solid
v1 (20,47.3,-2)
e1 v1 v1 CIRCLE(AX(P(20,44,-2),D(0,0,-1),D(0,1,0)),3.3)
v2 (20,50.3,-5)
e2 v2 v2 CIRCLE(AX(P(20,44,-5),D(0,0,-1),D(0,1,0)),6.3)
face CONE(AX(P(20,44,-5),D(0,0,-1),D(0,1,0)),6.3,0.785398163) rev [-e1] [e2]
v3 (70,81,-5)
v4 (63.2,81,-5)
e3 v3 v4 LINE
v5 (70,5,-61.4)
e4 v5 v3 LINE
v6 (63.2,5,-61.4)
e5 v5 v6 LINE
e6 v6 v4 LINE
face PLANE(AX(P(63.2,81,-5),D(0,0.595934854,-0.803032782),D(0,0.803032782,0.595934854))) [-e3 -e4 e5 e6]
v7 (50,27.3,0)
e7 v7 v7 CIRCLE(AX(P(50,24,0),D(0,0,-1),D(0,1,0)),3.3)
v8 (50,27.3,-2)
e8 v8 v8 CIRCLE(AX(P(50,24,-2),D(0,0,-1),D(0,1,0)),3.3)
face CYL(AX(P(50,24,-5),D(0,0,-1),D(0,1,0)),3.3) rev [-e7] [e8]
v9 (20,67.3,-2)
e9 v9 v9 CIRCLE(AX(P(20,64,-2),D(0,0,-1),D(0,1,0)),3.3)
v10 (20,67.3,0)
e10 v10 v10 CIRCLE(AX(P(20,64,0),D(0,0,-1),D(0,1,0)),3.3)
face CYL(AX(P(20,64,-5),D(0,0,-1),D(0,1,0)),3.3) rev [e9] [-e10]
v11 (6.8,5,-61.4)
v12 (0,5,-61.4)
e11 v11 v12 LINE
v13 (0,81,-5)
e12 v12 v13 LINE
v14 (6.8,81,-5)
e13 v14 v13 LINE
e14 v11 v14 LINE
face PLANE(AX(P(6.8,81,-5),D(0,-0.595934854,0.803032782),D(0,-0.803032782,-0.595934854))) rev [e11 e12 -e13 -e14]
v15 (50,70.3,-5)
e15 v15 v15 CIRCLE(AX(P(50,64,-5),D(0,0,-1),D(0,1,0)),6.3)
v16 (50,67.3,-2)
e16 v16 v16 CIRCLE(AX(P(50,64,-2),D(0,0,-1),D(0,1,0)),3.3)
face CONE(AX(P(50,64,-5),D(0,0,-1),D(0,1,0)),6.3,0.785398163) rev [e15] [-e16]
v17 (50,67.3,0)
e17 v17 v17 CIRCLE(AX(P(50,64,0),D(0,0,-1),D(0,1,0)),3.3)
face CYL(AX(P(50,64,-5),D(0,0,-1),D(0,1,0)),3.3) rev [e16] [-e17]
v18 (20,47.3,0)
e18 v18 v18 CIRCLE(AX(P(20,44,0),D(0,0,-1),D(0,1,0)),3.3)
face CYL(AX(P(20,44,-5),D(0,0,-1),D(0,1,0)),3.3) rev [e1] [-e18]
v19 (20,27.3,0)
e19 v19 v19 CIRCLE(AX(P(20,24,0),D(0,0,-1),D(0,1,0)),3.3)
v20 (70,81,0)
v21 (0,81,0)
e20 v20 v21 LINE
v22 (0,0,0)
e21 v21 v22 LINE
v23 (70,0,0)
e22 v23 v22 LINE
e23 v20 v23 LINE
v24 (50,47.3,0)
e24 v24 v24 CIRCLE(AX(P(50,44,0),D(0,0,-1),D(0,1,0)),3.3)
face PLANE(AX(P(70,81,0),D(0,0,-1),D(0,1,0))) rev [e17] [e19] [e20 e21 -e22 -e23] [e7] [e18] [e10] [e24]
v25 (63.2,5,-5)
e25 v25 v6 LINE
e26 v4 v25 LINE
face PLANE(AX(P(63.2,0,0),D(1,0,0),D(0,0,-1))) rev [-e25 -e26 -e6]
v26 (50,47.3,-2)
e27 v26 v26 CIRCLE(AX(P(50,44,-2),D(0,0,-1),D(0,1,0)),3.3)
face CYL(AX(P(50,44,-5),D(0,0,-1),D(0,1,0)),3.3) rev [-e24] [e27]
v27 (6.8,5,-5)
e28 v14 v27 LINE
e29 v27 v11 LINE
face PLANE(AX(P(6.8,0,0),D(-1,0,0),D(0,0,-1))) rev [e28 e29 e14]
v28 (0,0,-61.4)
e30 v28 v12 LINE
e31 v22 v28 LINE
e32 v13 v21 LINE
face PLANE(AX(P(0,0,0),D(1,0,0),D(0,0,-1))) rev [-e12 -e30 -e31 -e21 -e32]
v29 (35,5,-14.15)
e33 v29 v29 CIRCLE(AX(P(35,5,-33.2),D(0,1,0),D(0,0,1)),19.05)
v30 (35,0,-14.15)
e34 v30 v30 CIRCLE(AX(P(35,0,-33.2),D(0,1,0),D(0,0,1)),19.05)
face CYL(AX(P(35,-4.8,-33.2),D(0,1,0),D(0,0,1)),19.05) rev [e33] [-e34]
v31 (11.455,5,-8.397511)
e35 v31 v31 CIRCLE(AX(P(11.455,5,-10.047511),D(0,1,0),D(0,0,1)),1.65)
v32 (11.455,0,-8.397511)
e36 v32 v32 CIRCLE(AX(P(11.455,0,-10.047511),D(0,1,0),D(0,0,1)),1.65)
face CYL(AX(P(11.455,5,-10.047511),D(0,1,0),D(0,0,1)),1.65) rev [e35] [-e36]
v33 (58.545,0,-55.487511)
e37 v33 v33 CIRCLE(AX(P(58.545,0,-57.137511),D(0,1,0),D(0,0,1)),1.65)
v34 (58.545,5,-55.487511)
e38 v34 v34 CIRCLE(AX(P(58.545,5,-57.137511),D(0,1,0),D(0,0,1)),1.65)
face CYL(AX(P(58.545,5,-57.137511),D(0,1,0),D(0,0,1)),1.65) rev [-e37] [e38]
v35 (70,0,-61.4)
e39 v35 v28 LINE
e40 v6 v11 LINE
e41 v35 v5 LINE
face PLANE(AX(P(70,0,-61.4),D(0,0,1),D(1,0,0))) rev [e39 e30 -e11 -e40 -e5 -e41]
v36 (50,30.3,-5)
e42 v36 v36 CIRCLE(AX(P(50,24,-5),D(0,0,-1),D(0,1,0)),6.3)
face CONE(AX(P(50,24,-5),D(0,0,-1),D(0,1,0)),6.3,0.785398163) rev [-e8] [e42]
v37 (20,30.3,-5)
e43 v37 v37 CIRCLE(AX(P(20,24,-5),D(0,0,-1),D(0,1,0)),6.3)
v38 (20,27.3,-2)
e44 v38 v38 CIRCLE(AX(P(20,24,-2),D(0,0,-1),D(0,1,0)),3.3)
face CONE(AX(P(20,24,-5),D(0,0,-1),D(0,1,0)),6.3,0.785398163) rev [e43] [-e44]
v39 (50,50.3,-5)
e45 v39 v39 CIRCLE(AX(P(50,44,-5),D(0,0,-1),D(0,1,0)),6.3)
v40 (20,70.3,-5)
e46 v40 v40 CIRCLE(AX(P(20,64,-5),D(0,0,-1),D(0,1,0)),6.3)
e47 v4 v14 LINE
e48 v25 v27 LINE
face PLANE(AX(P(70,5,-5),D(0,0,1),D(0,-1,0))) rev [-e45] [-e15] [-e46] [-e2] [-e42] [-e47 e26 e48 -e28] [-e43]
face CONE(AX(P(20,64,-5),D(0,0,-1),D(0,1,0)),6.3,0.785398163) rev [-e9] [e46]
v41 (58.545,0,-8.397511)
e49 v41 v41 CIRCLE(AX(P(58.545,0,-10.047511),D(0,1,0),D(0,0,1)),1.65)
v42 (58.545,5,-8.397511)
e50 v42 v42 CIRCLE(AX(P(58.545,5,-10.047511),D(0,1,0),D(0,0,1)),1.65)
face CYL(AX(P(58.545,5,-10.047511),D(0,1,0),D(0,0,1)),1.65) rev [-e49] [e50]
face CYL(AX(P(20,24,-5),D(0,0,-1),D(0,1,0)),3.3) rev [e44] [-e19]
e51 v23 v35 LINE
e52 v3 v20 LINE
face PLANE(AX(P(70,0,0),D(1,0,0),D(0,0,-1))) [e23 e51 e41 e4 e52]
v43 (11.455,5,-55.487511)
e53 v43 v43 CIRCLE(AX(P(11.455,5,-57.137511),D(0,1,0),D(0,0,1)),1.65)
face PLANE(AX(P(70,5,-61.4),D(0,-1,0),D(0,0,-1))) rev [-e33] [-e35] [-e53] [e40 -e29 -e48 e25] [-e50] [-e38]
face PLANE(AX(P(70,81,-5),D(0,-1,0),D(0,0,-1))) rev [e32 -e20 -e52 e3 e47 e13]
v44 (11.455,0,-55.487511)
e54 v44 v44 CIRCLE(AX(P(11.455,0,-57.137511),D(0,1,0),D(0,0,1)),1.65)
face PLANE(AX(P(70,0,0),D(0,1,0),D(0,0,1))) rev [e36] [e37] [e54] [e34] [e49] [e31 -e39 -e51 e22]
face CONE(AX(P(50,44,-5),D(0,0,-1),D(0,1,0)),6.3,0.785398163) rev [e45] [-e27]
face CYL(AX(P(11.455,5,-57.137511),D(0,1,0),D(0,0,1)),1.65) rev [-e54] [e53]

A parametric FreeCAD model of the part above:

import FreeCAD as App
import Part
import Sketcher
Q = App.Units.Quantity

doc = App.newDocument("Part")
body = doc.addObject("PartDesign::Body", "Body")

# Sketch on YZ plane
sketch1 = body.newObject("Sketcher::SketchObject", "Sketch")
sketch1.AttachmentSupport = (doc.getObject("YZ_Plane"), [""])
sketch1.MapMode = "FlatFace"
sketch1.addGeometry([
    Part.LineSegment(App.Vector(0, 0, 0), App.Vector(0, -61, 0)),  # 0
    Part.LineSegment(App.Vector(0, -61, 0), App.Vector(5, -61, 0)),  # 1
    Part.LineSegment(App.Vector(5, -61, 0), App.Vector(5, -5, 0)),  # 2
    Part.LineSegment(App.Vector(5, -5, 0), App.Vector(81, -5, 0)),  # 3
    Part.LineSegment(App.Vector(81, -5, 0), App.Vector(81, 0, 0)),  # 4
    Part.LineSegment(App.Vector(81, 0, 0), App.Vector(0, 0, 0)),  # 5
], False)
sketch1.addConstraint([
    Sketcher.Constraint("Coincident", 0, 2, 1, 1),
    Sketcher.Constraint("Coincident", 1, 2, 2, 1),
    Sketcher.Constraint("Coincident", 2, 2, 3, 1),
    Sketcher.Constraint("Coincident", 3, 2, 4, 1),
    Sketcher.Constraint("Coincident", 4, 2, 5, 1),
    Sketcher.Constraint("Coincident", 5, 2, 0, 1),
    Sketcher.Constraint("Vertical", 0),
    Sketcher.Constraint("Horizontal", 1),
    Sketcher.Constraint("Vertical", 2),
    Sketcher.Constraint("Horizontal", 3),
    Sketcher.Constraint("Vertical", 4),
    Sketcher.Constraint("Horizontal", 5),
    Sketcher.Constraint("Coincident", 5, 2, -1, 1),
    Sketcher.Constraint("Equal", 1, 4),
    Sketcher.Constraint("DistanceX", 1, 1, 1, 2, Q("5 mm")),
    Sketcher.Constraint("DistanceX", 3, 1, 3, 2, Q("76 mm")),
    Sketcher.Constraint("DistanceY", 0, 2, 0, 1, Q("61.4 mm")),
])
pad1 = body.newObject("PartDesign::Pad", "Pad")
pad1.Profile = sketch1
pad1.Length = 70

# Sketch on YZ plane
sketch2 = body.newObject("Sketcher::SketchObject", "Sketch001")
sketch2.AttachmentSupport = (doc.getObject("YZ_Plane"), [""])
sketch2.MapMode = "FlatFace"
sketch2.AttachmentOffset = App.Placement(App.Vector(0, 0, 70), App.Rotation())
sketch2.addGeometry([
    Part.LineSegment(App.Vector(5, -61, 0), App.Vector(81, -5, 0)),
    Part.LineSegment(App.Vector(81, -5, 0), App.Vector(5, -5, 0)),
    Part.LineSegment(App.Vector(5, -5, 0), App.Vector(5, -61, 0)),
], False)
sketch2.addConstraint([
    Sketcher.Constraint("Coincident", 0, 2, 1, 1),
    Sketcher.Constraint("Coincident", 1, 2, 2, 1),
    Sketcher.Constraint("Coincident", 2, 2, 0, 1),
    Sketcher.Constraint("Horizontal", 1),
    Sketcher.Constraint("Vertical", 2),
    Sketcher.Constraint("DistanceX", 1, 2, 1, 1, Q("76 mm")),
    Sketcher.Constraint("DistanceY", 2, 2, 2, 1, Q("56.4 mm")),
    Sketcher.Constraint("DistanceX", -1, 1, 0, 2, Q("81 mm")),
    Sketcher.Constraint("DistanceY", 0, 2, -1, 1, Q("5 mm")),
])
pad2 = body.newObject("PartDesign::Pad", "Pad001")
pad2.Profile = sketch2
pad2.Length = 6.8
pad2.Reversed = True
doc.recompute()

datumplane = body.newObject("PartDesign::Plane", "DatumPlane")
datumplane.AttachmentSupport = (doc.getObject("YZ_Plane"), [""])
datumplane.MapMode = "FlatFace"
datumplane.AttachmentOffset = App.Placement(App.Vector(0, 0, 35), App.Rotation())
mirrored = body.newObject("PartDesign::Mirrored", "Mirrored")
mirrored.Originals = [pad2]
mirrored.MirrorPlane = (datumplane, [""])
body.Tip = mirrored

# Sketch on XZ plane
sketch3 = body.newObject("Sketcher::SketchObject", "Sketch002")
sketch3.AttachmentSupport = (doc.getObject("XZ_Plane"), [""])
sketch3.MapMode = "FlatFace"
sketch3.AttachmentOffset = App.Placement(App.Vector(0, 0, -5), App.Rotation())
sketch3.addGeometry([
    Part.Circle(App.Vector(11.5, -57.1, 0), App.Vector(0, 0, 1), 1.6),
    Part.Circle(App.Vector(58.5, -57.1, 0), App.Vector(0, 0, 1), 1.6),
    Part.Circle(App.Vector(11.5, -10, 0), App.Vector(0, 0, 1), 1.6),
    Part.Circle(App.Vector(58.5, -10, 0), App.Vector(0, 0, 1), 1.6),
], False)
sketch3.addConstraint([
    Sketcher.Constraint("Equal", 0, 1),
    Sketcher.Constraint("Equal", 1, 2),
    Sketcher.Constraint("Equal", 2, 3),
    Sketcher.Constraint("Horizontal", 0, 3, 1, 3),
    Sketcher.Constraint("Horizontal", 2, 3, 3, 3),
    Sketcher.Constraint("Vertical", 0, 3, 2, 3),
    Sketcher.Constraint("Vertical", 1, 3, 3, 3),
    Sketcher.Constraint("Diameter", 0, Q("3.3 mm")),
    Sketcher.Constraint("DistanceX", 0, 3, 1, 3, Q("47.09 mm")),
    Sketcher.Constraint("DistanceY", 0, 3, 2, 3, Q("47.09 mm")),
    Sketcher.Constraint("DistanceX", -1, 1, 0, 3, Q("11.455 mm")),
    Sketcher.Constraint("DistanceY", 0, 3, -1, 1, Q("57.137511 mm")),
])
doc.recompute()
hole = body.newObject("PartDesign::Hole", "Hole")
hole.Profile = sketch3
hole.ThreadType = "None"
hole.Diameter = 3.3
hole.DepthType = "ThroughAll"
hole.Reversed = True

# Sketch on XZ plane
sketch4 = body.newObject("Sketcher::SketchObject", "Sketch003")
sketch4.AttachmentSupport = (doc.getObject("XZ_Plane"), [""])
sketch4.MapMode = "FlatFace"
sketch4.AttachmentOffset = App.Placement(App.Vector(0, 0, -5), App.Rotation())
sketch4.addGeometry(Part.Circle(App.Vector(35, -33, 0), App.Vector(0, 0, 1), 19), False)
sketch4.addConstraint([
    Sketcher.Constraint("Diameter", 0, Q("38.1 mm")),
    Sketcher.Constraint("DistanceX", -1, 1, 0, 3, Q("35 mm")),
    Sketcher.Constraint("DistanceY", 0, 3, -1, 1, Q("33.2 mm")),
])
pocket1 = body.newObject("PartDesign::Pocket", "Pocket")
pocket1.Profile = sketch4
pocket1.Length = 9.8
pocket1.Reversed = True

# Sketch on YZ plane
sketch5 = body.newObject("Sketcher::SketchObject", "Sketch004")
sketch5.AttachmentSupport = (doc.getObject("YZ_Plane"), [""])
sketch5.MapMode = "FlatFace"
sketch5.AttachmentOffset = App.Placement(App.Vector(0, 0, 50), App.Rotation())
sketch5.addGeometry([
    Part.LineSegment(App.Vector(64, 0, 0), App.Vector(64, -5, 0)),  # 0
    Part.LineSegment(App.Vector(64, -5, 0), App.Vector(70.3, -5, 0)),  # 1
    Part.LineSegment(App.Vector(70.3, -5, 0), App.Vector(67.3, -2, 0)),  # 2
    Part.LineSegment(App.Vector(67.3, -2, 0), App.Vector(67.3, 0, 0)),  # 3
    Part.LineSegment(App.Vector(67.3, 0, 0), App.Vector(64, 0, 0)),  # 4
], False)
sketch5.addGeometry(Part.LineSegment(App.Vector(64, -5, 0), App.Vector(64, 0, 0)), True)  # axis
sketch5.addConstraint([
    Sketcher.Constraint("Coincident", 0, 2, 1, 1),
    Sketcher.Constraint("Coincident", 1, 2, 2, 1),
    Sketcher.Constraint("Coincident", 2, 2, 3, 1),
    Sketcher.Constraint("Coincident", 3, 2, 4, 1),
    Sketcher.Constraint("Coincident", 4, 2, 0, 1),
    Sketcher.Constraint("Vertical", 0),
    Sketcher.Constraint("Horizontal", 1),
    Sketcher.Constraint("Vertical", 3),
    Sketcher.Constraint("Horizontal", 4),
    Sketcher.Constraint("Vertical", 5),
    Sketcher.Constraint("Coincident", 5, 1, 0, 2),
    Sketcher.Constraint("PointOnObject", 3, 2, -1),
    Sketcher.Constraint("PointOnObject", 5, 2, -1),
    Sketcher.Constraint("DistanceY", 0, 2, 0, 1, Q("5 mm")),
    Sketcher.Constraint("DistanceY", 3, 1, 3, 2, Q("2 mm")),
    Sketcher.Constraint("Angle", 2, Q("135 deg")),
    Sketcher.Constraint("DistanceX", 1, 1, 1, 2, Q("6.3 mm")),
    Sketcher.Constraint("DistanceX", -1, 1, 0, 2, Q("64 mm")),
])
groove = body.newObject("PartDesign::Groove", "Groove")
groove.Profile = sketch5
groove.ReferenceAxis = (sketch5, ["Axis0"])
groove.Angle = 360
doc.recompute()

linearpattern = body.newObject("PartDesign::LinearPattern", "LinearPattern")
linearpattern.Originals = [groove]
linearpattern.Direction = (doc.getObject("X_Axis"), [""])
linearpattern.Mode = "offset"
linearpattern.Offset = 30
linearpattern.Occurrences = 2
linearpattern.Reversed = True
body.Tip = linearpattern
doc.recompute()

linearpattern2 = body.newObject("PartDesign::LinearPattern", "LinearPattern001")
linearpattern2.Originals = [groove]
linearpattern2.Direction = (doc.getObject("Y_Axis"), [""])
linearpattern2.Mode = "offset"
linearpattern2.Offset = 20
linearpattern2.Occurrences = 2
linearpattern2.Reversed = True
body.Tip = linearpattern2
doc.recompute()

datumline = body.newObject("PartDesign::Line", "DatumLine")
datumline.Placement = App.Placement(App.Vector(0, 0, 0), App.Rotation(App.Vector(0, 0, 1), App.Vector(-0.832050294, -0.554700196, 0)))
linearpattern3 = body.newObject("PartDesign::LinearPattern", "LinearPattern002")
linearpattern3.Originals = [groove]
linearpattern3.Direction = (datumline, [""])
linearpattern3.Mode = "offset"
linearpattern3.Offset = 36.055513
linearpattern3.Occurrences = 2
body.Tip = linearpattern3
doc.recompute()

linearpattern4 = body.newObject("PartDesign::LinearPattern", "LinearPattern003")
linearpattern4.Originals = [groove]
linearpattern4.Direction = (doc.getObject("Y_Axis"), [""])
linearpattern4.Mode = "offset"
linearpattern4.Offset = 40
linearpattern4.Occurrences = 2
linearpattern4.Reversed = True
body.Tip = linearpattern4
doc.recompute()

datumline2 = body.newObject("PartDesign::Line", "DatumLine001")
datumline2.Placement = App.Placement(App.Vector(0, 0, 0), App.Rotation(App.Vector(0, 0, 1), App.Vector(-0.6, -0.8, 0)))
linearpattern5 = body.newObject("PartDesign::LinearPattern", "LinearPattern004")
linearpattern5.Originals = [groove]
linearpattern5.Direction = (datumline2, [""])
linearpattern5.Mode = "offset"
linearpattern5.Offset = 50
linearpattern5.Occurrences = 2
body.Tip = linearpattern5

doc.recompute()
